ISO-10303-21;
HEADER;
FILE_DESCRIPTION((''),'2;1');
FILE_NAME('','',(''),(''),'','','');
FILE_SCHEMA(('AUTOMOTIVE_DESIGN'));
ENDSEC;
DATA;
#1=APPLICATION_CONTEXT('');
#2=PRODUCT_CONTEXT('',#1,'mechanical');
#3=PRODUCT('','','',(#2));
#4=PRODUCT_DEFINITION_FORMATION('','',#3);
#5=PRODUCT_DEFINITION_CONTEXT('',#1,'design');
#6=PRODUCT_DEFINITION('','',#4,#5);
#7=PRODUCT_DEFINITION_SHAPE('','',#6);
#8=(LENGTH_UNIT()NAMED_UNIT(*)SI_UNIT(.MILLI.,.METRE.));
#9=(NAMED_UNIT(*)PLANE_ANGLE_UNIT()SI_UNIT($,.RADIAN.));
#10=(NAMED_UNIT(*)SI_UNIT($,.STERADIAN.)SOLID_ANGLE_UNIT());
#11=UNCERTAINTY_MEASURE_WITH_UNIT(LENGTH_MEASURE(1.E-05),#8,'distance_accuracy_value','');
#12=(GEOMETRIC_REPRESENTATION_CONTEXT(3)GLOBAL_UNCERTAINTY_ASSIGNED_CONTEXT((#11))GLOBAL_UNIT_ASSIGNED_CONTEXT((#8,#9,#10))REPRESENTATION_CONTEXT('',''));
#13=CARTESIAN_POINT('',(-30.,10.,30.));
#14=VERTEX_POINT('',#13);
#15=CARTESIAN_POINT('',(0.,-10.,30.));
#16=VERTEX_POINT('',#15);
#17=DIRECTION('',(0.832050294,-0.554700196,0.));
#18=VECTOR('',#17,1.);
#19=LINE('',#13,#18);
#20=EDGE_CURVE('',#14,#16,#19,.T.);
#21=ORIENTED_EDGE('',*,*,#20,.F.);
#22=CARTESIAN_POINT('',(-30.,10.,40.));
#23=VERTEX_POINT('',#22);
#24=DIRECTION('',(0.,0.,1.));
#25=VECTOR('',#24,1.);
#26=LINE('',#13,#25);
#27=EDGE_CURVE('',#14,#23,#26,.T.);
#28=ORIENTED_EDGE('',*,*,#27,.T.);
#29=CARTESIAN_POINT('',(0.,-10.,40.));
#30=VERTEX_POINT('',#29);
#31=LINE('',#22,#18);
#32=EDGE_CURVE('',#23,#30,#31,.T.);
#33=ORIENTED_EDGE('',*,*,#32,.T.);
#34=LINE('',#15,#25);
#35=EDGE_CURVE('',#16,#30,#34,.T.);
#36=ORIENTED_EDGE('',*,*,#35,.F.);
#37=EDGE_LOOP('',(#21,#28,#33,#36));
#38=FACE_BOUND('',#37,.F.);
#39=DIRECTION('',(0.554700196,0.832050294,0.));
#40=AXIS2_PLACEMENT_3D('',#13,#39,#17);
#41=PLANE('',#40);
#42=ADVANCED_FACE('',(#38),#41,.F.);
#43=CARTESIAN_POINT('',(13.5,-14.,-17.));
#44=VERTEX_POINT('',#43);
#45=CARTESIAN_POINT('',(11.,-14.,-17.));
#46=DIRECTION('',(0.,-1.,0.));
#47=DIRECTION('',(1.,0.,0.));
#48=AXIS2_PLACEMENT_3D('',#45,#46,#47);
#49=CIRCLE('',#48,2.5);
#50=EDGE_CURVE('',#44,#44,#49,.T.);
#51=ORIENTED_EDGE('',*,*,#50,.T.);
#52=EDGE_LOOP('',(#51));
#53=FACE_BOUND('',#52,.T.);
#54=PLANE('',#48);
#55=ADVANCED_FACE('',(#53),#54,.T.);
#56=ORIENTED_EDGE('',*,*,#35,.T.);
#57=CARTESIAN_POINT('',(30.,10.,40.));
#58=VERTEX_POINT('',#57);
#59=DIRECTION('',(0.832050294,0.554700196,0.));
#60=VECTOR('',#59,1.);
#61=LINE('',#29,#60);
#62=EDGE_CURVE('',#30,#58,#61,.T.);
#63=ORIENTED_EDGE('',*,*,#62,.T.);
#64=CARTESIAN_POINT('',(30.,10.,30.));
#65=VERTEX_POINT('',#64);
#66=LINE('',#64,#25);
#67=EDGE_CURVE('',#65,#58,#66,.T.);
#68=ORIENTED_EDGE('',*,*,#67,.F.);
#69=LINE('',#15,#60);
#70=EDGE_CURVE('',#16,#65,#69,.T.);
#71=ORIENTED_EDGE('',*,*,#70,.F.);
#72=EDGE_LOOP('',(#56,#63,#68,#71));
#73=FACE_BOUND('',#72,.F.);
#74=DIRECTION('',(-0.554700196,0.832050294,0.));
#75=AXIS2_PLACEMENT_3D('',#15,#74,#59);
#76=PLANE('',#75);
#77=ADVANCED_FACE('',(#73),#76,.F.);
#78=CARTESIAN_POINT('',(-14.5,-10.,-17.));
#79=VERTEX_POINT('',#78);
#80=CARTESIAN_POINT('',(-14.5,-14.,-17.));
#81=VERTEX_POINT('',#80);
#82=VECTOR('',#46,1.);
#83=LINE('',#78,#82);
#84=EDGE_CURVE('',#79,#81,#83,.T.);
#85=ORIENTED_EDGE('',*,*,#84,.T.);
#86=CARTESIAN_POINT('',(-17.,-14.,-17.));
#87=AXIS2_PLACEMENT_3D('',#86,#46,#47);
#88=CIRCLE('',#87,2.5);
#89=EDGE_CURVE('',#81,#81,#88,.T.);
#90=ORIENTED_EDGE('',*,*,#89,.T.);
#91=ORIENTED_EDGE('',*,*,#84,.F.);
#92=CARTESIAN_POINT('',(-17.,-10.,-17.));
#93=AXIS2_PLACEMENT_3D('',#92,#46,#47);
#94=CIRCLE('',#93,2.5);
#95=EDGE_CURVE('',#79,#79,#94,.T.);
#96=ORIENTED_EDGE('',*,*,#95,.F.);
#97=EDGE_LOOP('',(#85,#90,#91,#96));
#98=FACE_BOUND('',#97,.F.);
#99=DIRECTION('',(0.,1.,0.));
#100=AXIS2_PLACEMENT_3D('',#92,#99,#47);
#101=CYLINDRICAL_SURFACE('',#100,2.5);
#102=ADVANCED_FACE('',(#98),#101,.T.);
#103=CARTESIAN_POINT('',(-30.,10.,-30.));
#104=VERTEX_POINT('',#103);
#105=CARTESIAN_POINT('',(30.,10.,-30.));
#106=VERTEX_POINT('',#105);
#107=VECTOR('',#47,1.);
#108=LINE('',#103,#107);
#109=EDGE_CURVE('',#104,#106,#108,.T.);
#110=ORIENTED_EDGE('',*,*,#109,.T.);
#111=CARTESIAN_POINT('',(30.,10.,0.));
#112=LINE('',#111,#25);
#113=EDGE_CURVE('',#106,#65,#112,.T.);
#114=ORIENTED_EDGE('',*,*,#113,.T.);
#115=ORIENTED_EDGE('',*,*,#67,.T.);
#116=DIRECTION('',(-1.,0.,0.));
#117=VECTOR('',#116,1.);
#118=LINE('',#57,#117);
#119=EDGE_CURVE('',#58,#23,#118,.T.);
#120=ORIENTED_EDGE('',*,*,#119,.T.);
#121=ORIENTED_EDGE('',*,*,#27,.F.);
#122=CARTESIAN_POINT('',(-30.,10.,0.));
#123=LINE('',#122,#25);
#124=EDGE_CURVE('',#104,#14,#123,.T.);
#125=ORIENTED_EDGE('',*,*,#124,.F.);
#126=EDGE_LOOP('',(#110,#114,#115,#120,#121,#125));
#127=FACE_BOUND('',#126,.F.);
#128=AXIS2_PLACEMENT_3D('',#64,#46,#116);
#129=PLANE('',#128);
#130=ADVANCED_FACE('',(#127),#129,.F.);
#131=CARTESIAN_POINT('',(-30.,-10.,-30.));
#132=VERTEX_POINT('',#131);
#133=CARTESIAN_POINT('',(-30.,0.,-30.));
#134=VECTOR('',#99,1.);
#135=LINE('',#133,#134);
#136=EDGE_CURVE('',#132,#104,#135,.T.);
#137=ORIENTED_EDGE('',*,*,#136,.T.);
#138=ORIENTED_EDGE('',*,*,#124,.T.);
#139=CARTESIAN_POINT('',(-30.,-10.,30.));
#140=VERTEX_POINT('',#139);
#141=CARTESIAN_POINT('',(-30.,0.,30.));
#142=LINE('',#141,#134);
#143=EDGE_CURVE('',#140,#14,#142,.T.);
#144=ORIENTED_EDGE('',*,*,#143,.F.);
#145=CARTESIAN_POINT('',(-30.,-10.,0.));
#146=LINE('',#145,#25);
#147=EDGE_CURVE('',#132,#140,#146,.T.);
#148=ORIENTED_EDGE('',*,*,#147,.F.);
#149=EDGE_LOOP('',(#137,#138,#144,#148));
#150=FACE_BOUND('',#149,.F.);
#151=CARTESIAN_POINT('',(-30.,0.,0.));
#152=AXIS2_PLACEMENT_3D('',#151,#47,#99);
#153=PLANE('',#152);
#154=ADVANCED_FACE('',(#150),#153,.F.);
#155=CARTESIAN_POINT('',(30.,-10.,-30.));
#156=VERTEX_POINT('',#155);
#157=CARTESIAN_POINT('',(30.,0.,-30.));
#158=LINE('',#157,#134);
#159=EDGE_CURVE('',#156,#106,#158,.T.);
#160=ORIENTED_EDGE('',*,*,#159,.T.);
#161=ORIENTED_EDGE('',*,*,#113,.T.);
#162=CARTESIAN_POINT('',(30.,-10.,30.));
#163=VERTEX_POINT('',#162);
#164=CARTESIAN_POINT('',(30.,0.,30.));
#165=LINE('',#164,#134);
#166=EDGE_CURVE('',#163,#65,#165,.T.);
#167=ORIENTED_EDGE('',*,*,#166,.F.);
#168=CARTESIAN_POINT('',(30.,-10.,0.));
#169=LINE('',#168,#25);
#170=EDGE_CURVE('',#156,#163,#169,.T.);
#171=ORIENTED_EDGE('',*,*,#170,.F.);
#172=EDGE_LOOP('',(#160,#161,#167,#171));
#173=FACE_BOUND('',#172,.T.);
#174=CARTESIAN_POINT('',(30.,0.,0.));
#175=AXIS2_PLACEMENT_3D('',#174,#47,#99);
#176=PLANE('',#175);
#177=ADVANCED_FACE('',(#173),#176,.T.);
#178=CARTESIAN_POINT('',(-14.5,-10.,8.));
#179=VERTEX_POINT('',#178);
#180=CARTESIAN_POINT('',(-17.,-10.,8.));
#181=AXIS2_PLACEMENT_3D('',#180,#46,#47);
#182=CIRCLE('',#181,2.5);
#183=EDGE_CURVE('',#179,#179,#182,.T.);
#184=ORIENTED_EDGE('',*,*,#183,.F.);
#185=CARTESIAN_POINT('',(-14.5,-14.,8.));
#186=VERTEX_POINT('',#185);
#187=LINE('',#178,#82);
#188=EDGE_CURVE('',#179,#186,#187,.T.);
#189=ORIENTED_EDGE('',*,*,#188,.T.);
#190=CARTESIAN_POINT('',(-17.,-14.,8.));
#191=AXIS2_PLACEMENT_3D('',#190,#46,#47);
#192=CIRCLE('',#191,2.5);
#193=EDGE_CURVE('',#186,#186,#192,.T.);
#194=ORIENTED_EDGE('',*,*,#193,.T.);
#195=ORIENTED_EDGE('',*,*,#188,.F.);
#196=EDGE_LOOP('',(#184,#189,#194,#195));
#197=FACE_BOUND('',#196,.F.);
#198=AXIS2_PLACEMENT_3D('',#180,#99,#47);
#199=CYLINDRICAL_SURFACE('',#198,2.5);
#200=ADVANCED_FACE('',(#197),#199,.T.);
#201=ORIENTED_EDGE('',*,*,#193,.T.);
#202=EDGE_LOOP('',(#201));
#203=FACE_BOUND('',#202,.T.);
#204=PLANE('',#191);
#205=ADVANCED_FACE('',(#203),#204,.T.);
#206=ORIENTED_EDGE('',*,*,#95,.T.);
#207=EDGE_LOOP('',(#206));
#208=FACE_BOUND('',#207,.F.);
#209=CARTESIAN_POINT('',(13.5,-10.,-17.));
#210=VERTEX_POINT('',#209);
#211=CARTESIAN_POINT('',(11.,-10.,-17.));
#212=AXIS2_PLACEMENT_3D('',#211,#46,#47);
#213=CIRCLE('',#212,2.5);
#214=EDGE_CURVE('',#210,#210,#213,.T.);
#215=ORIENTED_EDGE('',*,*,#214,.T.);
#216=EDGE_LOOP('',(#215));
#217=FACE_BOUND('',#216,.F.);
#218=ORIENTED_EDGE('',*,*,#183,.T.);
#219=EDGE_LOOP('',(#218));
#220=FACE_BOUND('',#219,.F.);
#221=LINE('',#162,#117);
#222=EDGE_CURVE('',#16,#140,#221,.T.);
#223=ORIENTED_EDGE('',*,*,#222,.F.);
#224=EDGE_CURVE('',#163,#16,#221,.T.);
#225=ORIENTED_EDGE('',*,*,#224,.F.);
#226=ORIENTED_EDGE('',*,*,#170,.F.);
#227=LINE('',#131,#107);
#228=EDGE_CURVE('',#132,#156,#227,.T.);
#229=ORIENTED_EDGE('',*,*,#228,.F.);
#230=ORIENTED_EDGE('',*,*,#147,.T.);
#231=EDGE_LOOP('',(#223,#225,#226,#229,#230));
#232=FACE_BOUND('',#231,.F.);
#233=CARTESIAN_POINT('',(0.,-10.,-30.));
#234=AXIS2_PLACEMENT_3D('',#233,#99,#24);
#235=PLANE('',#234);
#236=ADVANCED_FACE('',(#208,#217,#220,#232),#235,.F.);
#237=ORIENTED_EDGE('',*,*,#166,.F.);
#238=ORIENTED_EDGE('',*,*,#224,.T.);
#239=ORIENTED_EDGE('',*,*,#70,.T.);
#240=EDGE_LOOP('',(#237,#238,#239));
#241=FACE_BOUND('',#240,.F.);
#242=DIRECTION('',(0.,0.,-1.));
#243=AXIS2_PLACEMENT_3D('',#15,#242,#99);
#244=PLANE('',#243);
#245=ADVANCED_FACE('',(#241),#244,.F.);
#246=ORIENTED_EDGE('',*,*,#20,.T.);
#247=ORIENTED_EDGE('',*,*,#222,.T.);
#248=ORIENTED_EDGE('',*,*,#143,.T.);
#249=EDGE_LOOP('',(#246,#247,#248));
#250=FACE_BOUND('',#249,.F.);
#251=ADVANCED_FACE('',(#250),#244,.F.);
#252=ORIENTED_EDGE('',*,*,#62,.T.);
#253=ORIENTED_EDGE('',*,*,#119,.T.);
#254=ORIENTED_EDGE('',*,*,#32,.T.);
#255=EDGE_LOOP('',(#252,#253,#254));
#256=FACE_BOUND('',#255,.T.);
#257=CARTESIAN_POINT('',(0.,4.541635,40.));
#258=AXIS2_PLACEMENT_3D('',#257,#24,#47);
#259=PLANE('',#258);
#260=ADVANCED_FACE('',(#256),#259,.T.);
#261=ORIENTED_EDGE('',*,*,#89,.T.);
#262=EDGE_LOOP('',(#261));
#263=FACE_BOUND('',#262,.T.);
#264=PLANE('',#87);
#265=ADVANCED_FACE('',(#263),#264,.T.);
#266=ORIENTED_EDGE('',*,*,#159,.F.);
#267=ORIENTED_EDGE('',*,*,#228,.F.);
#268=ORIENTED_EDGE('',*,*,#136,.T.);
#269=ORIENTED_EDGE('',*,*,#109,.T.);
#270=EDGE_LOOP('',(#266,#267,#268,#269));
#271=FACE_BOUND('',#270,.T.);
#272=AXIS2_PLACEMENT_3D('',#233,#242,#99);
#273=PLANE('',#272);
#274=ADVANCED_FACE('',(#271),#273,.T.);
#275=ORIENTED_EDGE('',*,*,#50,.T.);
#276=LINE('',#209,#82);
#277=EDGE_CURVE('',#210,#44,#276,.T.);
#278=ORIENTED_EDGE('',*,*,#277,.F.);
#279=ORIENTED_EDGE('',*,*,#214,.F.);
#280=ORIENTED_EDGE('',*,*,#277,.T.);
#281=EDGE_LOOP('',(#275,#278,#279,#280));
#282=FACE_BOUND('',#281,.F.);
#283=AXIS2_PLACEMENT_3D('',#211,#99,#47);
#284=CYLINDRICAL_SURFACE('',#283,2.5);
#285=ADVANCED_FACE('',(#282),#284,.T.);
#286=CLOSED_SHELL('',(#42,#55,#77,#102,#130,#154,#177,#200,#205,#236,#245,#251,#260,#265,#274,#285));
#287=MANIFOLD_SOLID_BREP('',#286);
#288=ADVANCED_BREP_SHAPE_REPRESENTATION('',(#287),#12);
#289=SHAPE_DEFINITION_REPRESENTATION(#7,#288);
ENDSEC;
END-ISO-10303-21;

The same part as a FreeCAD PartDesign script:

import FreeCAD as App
import Part
import Sketcher

V = App.Vector
Q = App.Units.Quantity

doc = App.newDocument("Part")
body = doc.addObject("PartDesign::Body", "Body")

# Sketch on YZ plane
sketch1 = body.newObject("Sketcher::SketchObject", "Sketch")
sketch1.AttachmentSupport = (doc.getObject("YZ_Plane"), [""])
sketch1.MapMode = "FlatFace"
sketch1.addGeometry([
    Part.LineSegment(V(-10, 30, 0), V(-10, -30, 0)),
    Part.LineSegment(V(-10, -30, 0), V(10, -30, 0)),
    Part.LineSegment(V(10, -30, 0), V(10, 30, 0)),
    Part.LineSegment(V(10, 30, 0), V(-10, 30, 0)),
], False)
sketch1.addConstraint([
    Sketcher.Constraint("Coincident", 0, 2, 1, 1),
    Sketcher.Constraint("Coincident", 1, 2, 2, 1),
    Sketcher.Constraint("Coincident", 2, 2, 3, 1),
    Sketcher.Constraint("Coincident", 3, 2, 0, 1),
    Sketcher.Constraint("Vertical", 0),
    Sketcher.Constraint("Horizontal", 1),
    Sketcher.Constraint("Vertical", 2),
    Sketcher.Constraint("Horizontal", 3),
    Sketcher.Constraint("Symmetric", 0, 2, 2, 2, -1, 1),
    Sketcher.Constraint("DistanceX", 1, 1, 1, 2, Q("20 mm")),
    Sketcher.Constraint("DistanceY", 0, 2, 0, 1, Q("60 mm")),
])
pad1 = body.newObject("PartDesign::Pad", "Pad")
pad1.Profile = sketch1
pad1.Type = "TwoLengths"
pad1.Length = 30
pad1.Length2 = 30

# Sketch on XY plane
sketch2 = body.newObject("Sketcher::SketchObject", "Sketch001")
sketch2.AttachmentSupport = (doc.getObject("XY_Plane"), [""])
sketch2.MapMode = "FlatFace"
sketch2.AttachmentOffset = App.Placement(V(0, 0, 30), App.Rotation())
sketch2.addGeometry([
    Part.LineSegment(V(30, 10, 0), V(-30, 10, 0)),
    Part.LineSegment(V(-30, 10, 0), V(0, -10, 0)),
    Part.LineSegment(V(0, -10, 0), V(30, 10, 0)),
], False)
sketch2.addConstraint([
    Sketcher.Constraint("Coincident", 0, 2, 1, 1),
    Sketcher.Constraint("Coincident", 1, 2, 2, 1),
    Sketcher.Constraint("Coincident", 2, 2, 0, 1),
    Sketcher.Constraint("Horizontal", 0),
    Sketcher.Constraint("PointOnObject", 1, 2, -2),
    Sketcher.Constraint("Equal", 1, 2),
    Sketcher.Constraint("DistanceX", 0, 2, 0, 1, Q("60 mm")),
    Sketcher.Constraint("DistanceY", -1, 1, 0, 2, Q("10 mm")),
    Sketcher.Constraint("DistanceY", 1, 2, -1, 1, Q("10 mm")),
])
pad2 = body.newObject("PartDesign::Pad", "Pad001")
pad2.Profile = sketch2
pad2.Length = 10

# Sketch on XZ plane
sketch3 = body.newObject("Sketcher::SketchObject", "Sketch002")
sketch3.AttachmentSupport = (doc.getObject("XZ_Plane"), [""])
sketch3.MapMode = "FlatFace"
sketch3.AttachmentOffset = App.Placement(V(0, 0, 10), App.Rotation())
sketch3.addGeometry([
    Part.Circle(V(-17, 8, 0), V(0, 0, 1), 2.5),
    Part.Circle(V(-17, -17, 0), V(0, 0, 1), 2.5),
    Part.Circle(V(11, -17, 0), V(0, 0, 1), 2.5),
], False)
sketch3.addConstraint([
    Sketcher.Constraint("Equal", 0, 1),
    Sketcher.Constraint("Equal", 1, 2),
    Sketcher.Constraint("Horizontal", 1, 3, 2, 3),
    Sketcher.Constraint("Vertical", 0, 3, 1, 3),
    Sketcher.Constraint("Diameter", 0, Q("5 mm")),
    Sketcher.Constraint("DistanceX", 0, 3, -1, 1, Q("17 mm")),
    Sketcher.Constraint("DistanceY", -1, 1, 0, 3, Q("8 mm")),
    Sketcher.Constraint("DistanceY", 1, 3, -1, 1, Q("17 mm")),
    Sketcher.Constraint("DistanceX", -1, 1, 2, 3, Q("11 mm")),
])
pad3 = body.newObject("PartDesign::Pad", "Pad002")
pad3.Profile = sketch3
pad3.Length = 4

doc.recompute()
